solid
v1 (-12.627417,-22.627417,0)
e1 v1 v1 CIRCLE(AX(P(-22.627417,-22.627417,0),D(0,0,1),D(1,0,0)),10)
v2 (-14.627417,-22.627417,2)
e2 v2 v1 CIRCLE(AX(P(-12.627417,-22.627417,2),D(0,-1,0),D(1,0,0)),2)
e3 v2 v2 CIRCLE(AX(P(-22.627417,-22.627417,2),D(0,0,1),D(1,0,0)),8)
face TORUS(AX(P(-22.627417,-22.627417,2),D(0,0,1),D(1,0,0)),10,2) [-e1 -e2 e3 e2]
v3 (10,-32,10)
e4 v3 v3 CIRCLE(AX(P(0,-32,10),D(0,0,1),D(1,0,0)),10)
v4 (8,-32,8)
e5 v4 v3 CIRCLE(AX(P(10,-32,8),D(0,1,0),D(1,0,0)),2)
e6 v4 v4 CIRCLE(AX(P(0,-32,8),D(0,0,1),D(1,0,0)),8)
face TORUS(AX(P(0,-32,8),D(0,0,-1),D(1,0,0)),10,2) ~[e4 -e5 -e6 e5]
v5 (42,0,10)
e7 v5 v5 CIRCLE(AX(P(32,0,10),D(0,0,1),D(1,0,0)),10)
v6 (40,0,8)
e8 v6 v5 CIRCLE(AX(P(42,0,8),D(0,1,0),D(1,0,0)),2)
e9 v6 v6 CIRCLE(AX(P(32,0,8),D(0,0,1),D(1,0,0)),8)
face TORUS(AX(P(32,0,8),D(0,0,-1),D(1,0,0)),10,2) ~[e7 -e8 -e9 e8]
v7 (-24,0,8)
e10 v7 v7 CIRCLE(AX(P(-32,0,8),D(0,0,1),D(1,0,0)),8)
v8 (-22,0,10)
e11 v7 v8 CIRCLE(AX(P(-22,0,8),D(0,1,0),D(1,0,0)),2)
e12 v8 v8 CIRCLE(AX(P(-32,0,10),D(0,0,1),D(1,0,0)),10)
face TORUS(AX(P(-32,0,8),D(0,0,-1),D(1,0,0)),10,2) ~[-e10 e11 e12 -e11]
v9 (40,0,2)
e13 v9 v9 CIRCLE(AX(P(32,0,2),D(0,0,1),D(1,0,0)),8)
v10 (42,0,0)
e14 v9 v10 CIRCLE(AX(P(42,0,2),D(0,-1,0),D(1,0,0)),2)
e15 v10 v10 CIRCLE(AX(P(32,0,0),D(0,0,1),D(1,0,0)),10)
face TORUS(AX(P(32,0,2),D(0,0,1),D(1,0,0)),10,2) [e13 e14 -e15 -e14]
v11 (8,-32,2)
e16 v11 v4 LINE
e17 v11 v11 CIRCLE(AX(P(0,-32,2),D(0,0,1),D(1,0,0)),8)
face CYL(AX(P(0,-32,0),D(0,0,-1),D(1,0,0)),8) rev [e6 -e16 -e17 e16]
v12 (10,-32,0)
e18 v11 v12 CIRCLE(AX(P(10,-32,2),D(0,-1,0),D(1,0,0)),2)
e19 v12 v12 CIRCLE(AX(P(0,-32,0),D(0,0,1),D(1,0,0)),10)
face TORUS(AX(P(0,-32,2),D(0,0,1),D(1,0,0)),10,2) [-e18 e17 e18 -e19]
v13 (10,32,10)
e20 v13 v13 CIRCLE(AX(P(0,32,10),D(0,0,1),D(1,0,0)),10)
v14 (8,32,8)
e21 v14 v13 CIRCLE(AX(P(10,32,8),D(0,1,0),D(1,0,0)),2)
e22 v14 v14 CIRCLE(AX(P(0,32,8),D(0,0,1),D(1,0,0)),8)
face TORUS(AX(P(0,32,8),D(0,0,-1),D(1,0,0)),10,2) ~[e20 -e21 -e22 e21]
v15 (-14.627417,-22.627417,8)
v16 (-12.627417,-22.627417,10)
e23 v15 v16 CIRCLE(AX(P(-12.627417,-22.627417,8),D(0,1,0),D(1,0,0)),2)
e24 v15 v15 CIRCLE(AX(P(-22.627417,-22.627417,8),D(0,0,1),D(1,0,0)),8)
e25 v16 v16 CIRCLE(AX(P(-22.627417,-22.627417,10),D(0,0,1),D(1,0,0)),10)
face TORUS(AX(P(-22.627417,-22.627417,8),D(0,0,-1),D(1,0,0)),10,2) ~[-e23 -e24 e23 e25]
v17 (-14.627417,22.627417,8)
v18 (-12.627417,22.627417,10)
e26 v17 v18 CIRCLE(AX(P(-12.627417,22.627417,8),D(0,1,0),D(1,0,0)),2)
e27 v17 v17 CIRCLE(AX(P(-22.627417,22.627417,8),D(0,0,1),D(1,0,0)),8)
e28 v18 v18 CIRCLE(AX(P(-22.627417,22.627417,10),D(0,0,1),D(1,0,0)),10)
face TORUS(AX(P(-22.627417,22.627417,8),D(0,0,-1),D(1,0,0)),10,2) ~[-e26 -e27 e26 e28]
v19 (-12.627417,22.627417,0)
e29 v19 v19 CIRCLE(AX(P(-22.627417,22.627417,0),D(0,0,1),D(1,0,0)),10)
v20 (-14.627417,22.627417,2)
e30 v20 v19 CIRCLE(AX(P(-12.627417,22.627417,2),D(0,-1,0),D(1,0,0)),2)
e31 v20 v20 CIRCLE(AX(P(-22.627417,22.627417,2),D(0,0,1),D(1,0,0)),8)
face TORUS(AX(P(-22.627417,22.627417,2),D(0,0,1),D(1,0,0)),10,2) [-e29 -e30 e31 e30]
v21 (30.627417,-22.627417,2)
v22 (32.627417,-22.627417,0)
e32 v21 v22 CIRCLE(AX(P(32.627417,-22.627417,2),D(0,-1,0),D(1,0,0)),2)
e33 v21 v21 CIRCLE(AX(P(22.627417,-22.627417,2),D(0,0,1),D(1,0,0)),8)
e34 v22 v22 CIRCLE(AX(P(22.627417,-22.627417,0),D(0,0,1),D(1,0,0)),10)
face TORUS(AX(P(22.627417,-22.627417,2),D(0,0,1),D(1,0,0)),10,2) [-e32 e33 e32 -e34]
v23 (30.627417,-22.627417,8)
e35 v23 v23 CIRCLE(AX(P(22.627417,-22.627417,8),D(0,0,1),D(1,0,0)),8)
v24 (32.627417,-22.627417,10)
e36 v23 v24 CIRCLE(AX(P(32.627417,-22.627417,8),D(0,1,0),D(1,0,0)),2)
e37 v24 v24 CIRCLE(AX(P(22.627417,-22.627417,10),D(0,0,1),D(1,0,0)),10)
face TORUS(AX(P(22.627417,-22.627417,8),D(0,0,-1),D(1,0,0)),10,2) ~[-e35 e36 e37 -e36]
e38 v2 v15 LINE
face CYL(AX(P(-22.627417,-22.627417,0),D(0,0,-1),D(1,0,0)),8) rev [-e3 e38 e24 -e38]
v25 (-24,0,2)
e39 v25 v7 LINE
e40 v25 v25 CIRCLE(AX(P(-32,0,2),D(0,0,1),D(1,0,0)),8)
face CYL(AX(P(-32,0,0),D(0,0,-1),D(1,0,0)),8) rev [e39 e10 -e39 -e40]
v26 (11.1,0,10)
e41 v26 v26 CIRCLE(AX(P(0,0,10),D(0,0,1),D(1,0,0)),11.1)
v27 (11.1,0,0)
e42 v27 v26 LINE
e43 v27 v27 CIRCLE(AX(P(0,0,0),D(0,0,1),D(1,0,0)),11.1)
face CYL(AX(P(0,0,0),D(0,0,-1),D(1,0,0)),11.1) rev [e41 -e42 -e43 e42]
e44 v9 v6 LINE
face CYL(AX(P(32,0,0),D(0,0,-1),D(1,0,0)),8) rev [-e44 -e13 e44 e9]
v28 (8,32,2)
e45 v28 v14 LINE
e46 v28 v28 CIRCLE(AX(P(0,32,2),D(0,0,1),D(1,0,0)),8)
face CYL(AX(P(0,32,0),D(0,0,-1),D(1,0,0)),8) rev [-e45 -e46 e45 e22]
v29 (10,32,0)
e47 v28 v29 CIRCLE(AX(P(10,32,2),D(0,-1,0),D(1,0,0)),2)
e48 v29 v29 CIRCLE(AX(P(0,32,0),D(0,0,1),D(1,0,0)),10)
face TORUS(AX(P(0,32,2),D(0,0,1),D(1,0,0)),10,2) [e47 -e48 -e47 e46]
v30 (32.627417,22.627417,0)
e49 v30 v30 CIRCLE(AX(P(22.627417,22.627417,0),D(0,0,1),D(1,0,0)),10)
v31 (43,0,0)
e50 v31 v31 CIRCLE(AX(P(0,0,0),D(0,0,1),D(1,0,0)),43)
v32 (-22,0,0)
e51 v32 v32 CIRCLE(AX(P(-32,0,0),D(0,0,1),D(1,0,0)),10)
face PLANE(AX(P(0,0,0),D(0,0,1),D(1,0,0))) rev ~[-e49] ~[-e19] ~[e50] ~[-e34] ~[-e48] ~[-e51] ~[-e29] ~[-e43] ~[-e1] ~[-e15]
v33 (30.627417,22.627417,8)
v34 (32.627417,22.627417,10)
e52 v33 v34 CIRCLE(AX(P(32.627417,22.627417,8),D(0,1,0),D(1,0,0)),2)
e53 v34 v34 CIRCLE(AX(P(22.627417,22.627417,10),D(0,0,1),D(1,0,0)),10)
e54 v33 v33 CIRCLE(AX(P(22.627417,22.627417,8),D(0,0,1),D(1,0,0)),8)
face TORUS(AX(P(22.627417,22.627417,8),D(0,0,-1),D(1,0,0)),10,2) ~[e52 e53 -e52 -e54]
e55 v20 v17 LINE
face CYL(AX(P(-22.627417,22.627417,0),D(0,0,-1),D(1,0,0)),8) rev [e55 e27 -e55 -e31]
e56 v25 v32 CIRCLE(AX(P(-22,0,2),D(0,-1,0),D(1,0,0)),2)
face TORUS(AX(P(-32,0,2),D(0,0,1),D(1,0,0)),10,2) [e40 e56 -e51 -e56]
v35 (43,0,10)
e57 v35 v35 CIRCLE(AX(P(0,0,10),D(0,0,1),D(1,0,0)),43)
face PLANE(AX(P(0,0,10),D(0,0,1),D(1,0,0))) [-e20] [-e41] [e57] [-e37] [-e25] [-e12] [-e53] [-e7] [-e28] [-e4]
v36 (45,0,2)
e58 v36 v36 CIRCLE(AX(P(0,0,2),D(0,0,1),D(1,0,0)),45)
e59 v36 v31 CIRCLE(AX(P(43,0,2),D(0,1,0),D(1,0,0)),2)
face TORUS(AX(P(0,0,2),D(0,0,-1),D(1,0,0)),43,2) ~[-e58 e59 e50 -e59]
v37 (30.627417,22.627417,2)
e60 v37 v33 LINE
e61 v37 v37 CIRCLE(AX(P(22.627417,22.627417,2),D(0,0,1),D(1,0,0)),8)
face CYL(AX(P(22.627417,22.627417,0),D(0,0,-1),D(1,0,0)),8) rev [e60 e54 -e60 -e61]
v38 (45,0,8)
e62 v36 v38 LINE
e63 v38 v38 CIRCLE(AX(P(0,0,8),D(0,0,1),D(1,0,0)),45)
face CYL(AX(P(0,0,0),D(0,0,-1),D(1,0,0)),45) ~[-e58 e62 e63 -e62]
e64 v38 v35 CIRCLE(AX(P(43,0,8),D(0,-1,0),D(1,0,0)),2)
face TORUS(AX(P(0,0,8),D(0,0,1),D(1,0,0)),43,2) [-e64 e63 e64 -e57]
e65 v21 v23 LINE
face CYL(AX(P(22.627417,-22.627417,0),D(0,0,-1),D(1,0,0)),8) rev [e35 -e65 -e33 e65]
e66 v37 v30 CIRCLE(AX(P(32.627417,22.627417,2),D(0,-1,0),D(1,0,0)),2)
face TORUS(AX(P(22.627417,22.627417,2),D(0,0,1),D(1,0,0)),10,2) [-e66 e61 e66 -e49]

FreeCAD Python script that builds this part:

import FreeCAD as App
import Part
import Sketcher


def edges_at(feature, points):
    """Names of the edges that pass closest to the given points."""
    edges = feature.Shape.Edges
    near = lambda p: min(range(len(edges)), key=lambda i: edges[i].distToShape(Part.Vertex(*p))[0])
    return sorted({f"Edge{near(p) + 1}" for p in points})

doc = App.newDocument("Part")
params = doc.addObject("Spreadsheet::Sheet", "Params")
for row, (alias, value) in enumerate([
    ("sketch1_diameter", "90 mm"),
    ("sketch1_diameter2", "16 mm"),
    ("sketch1_diameter3", "22.2 mm"),
    ("pad1_length", "10 mm"),
    ("fillet_radius", "2 mm"),
], start=1):
    params.set(f"A{row}", alias)
    params.set(f"B{row}", "=" + value)
    params.setAlias(f"B{row}", alias)

body = doc.addObject("PartDesign::Body", "Body")

# Sketch on XY plane
sketch1 = doc.addObject("Sketcher::SketchObject", "Sketch")
body.addObject(sketch1)
sketch1.AttachmentSupport = (doc.XY_Plane, [""])
sketch1.MapMode = "FlatFace"
sketch1.addGeometry(Part.Circle(App.Vector(0, 0, 0), App.Vector(0, 0, 1), 45), False)
sketch1.addGeometry(Part.Circle(App.Vector(-23, -23, 0), App.Vector(0, 0, 1), 8), False)
sketch1.addGeometry(Part.Circle(App.Vector(0, -32, 0), App.Vector(0, 0, 1), 8), False)
sketch1.addGeometry(Part.Circle(App.Vector(23, -23, 0), App.Vector(0, 0, 1), 8), False)
sketch1.addGeometry(Part.Circle(App.Vector(-32, 0, 0), App.Vector(0, 0, 1), 8), False)
sketch1.addGeometry(Part.Circle(App.Vector(-23, 23, 0), App.Vector(0, 0, 1), 8), False)
sketch1.addGeometry(Part.Circle(App.Vector(0, 0, 0), App.Vector(0, 0, 1), 11), False)
sketch1.addGeometry(Part.Circle(App.Vector(32, 0, 0), App.Vector(0, 0, 1), 8), False)
sketch1.addGeometry(Part.Circle(App.Vector(0, 32, 0), App.Vector(0, 0, 1), 8), False)
sketch1.addGeometry(Part.Circle(App.Vector(23, 23, 0), App.Vector(0, 0, 1), 8), False)
sketch1.addConstraint(Sketcher.Constraint("Coincident", 0, 3, -1, 1))
sketch1.addConstraint(Sketcher.Constraint("Coincident", 6, 3, -1, 1))
sketch1.addConstraint(Sketcher.Constraint("Equal", 1, 2))
sketch1.addConstraint(Sketcher.Constraint("Equal", 2, 3))
sketch1.addConstraint(Sketcher.Constraint("Equal", 3, 4))
sketch1.addConstraint(Sketcher.Constraint("Equal", 4, 5))
sketch1.addConstraint(Sketcher.Constraint("Equal", 5, 7))
sketch1.addConstraint(Sketcher.Constraint("Equal", 7, 8))
sketch1.addConstraint(Sketcher.Constraint("Equal", 8, 9))
sketch1.addConstraint(Sketcher.Constraint("Symmetric", 3, 3, 5, 3, -1, 1))
sketch1.addConstraint(Sketcher.Constraint("Symmetric", 4, 3, 7, 3, -1, 1))
sketch1.addConstraint(Sketcher.Constraint("Symmetric", 2, 3, 8, 3, -1, 1))
sketch1.addConstraint(Sketcher.Constraint("Symmetric", 1, 3, 9, 3, -1, 1))
sketch1.addConstraint(Sketcher.Constraint("Symmetric", 1, 3, 3, 3, -2))
sketch1.addConstraint(Sketcher.Constraint("PointOnObject", 2, 3, -2))
sketch1.addConstraint(Sketcher.Constraint("PointOnObject", 4, 3, -1))
sketch1.addConstraint(Sketcher.Constraint("Diameter", 0, 90.0))
sketch1.addConstraint(Sketcher.Constraint("Diameter", 1, 16.0))
sketch1.addConstraint(Sketcher.Constraint("Diameter", 6, 22.2))
sketch1.addConstraint(Sketcher.Constraint("DistanceY", 2, 3, -1, 1, 32.0))
sketch1.addConstraint(Sketcher.Constraint("DistanceX", 4, 3, -1, 1, 32.0))
sketch1.addConstraint(Sketcher.Constraint("DistanceX", 1, 3, -1, 1, 22.627417))
sketch1.addConstraint(Sketcher.Constraint("DistanceY", 1, 3, -1, 1, 22.627417))
sketch1.setExpression("Constraints[16]", "Params.sketch1_diameter")
sketch1.setExpression("Constraints[17]", "Params.sketch1_diameter2")
sketch1.setExpression("Constraints[18]", "Params.sketch1_diameter3")
pad1 = doc.addObject("PartDesign::Pad", "Pad")
body.addObject(pad1)
pad1.Profile = sketch1
pad1.setExpression("Length", "Params.pad1_length")
doc.recompute()

fillet = doc.addObject("PartDesign::Fillet", "Fillet")
body.addObject(fillet)
fillet.Base = (pad1, edges_at(pad1, [
    (-45, 0, 10),
    (-45, 0, 0),
    (-8, 32, 10),
    (14.627, 22.627, 10),
    (24, 0, 10),
    (14.627, -22.627, 10),
    (-8, -32, 10),
    (-30.627, -22.627, 10),
    (-40, 0, 10),
    (-30.627, 22.627, 10),
    (-30.627, 22.627, 0),
    (-8, 32, 0),
    (14.627, 22.627, 0),
    (24, 0, 0),
    (14.627, -22.627, 0),
    (-8, -32, 0),
    (-30.627, -22.627, 0),
    (-40, 0, 0),
]))
fillet.setExpression("Radius", "Params.fillet_radius")

doc.recompute()
